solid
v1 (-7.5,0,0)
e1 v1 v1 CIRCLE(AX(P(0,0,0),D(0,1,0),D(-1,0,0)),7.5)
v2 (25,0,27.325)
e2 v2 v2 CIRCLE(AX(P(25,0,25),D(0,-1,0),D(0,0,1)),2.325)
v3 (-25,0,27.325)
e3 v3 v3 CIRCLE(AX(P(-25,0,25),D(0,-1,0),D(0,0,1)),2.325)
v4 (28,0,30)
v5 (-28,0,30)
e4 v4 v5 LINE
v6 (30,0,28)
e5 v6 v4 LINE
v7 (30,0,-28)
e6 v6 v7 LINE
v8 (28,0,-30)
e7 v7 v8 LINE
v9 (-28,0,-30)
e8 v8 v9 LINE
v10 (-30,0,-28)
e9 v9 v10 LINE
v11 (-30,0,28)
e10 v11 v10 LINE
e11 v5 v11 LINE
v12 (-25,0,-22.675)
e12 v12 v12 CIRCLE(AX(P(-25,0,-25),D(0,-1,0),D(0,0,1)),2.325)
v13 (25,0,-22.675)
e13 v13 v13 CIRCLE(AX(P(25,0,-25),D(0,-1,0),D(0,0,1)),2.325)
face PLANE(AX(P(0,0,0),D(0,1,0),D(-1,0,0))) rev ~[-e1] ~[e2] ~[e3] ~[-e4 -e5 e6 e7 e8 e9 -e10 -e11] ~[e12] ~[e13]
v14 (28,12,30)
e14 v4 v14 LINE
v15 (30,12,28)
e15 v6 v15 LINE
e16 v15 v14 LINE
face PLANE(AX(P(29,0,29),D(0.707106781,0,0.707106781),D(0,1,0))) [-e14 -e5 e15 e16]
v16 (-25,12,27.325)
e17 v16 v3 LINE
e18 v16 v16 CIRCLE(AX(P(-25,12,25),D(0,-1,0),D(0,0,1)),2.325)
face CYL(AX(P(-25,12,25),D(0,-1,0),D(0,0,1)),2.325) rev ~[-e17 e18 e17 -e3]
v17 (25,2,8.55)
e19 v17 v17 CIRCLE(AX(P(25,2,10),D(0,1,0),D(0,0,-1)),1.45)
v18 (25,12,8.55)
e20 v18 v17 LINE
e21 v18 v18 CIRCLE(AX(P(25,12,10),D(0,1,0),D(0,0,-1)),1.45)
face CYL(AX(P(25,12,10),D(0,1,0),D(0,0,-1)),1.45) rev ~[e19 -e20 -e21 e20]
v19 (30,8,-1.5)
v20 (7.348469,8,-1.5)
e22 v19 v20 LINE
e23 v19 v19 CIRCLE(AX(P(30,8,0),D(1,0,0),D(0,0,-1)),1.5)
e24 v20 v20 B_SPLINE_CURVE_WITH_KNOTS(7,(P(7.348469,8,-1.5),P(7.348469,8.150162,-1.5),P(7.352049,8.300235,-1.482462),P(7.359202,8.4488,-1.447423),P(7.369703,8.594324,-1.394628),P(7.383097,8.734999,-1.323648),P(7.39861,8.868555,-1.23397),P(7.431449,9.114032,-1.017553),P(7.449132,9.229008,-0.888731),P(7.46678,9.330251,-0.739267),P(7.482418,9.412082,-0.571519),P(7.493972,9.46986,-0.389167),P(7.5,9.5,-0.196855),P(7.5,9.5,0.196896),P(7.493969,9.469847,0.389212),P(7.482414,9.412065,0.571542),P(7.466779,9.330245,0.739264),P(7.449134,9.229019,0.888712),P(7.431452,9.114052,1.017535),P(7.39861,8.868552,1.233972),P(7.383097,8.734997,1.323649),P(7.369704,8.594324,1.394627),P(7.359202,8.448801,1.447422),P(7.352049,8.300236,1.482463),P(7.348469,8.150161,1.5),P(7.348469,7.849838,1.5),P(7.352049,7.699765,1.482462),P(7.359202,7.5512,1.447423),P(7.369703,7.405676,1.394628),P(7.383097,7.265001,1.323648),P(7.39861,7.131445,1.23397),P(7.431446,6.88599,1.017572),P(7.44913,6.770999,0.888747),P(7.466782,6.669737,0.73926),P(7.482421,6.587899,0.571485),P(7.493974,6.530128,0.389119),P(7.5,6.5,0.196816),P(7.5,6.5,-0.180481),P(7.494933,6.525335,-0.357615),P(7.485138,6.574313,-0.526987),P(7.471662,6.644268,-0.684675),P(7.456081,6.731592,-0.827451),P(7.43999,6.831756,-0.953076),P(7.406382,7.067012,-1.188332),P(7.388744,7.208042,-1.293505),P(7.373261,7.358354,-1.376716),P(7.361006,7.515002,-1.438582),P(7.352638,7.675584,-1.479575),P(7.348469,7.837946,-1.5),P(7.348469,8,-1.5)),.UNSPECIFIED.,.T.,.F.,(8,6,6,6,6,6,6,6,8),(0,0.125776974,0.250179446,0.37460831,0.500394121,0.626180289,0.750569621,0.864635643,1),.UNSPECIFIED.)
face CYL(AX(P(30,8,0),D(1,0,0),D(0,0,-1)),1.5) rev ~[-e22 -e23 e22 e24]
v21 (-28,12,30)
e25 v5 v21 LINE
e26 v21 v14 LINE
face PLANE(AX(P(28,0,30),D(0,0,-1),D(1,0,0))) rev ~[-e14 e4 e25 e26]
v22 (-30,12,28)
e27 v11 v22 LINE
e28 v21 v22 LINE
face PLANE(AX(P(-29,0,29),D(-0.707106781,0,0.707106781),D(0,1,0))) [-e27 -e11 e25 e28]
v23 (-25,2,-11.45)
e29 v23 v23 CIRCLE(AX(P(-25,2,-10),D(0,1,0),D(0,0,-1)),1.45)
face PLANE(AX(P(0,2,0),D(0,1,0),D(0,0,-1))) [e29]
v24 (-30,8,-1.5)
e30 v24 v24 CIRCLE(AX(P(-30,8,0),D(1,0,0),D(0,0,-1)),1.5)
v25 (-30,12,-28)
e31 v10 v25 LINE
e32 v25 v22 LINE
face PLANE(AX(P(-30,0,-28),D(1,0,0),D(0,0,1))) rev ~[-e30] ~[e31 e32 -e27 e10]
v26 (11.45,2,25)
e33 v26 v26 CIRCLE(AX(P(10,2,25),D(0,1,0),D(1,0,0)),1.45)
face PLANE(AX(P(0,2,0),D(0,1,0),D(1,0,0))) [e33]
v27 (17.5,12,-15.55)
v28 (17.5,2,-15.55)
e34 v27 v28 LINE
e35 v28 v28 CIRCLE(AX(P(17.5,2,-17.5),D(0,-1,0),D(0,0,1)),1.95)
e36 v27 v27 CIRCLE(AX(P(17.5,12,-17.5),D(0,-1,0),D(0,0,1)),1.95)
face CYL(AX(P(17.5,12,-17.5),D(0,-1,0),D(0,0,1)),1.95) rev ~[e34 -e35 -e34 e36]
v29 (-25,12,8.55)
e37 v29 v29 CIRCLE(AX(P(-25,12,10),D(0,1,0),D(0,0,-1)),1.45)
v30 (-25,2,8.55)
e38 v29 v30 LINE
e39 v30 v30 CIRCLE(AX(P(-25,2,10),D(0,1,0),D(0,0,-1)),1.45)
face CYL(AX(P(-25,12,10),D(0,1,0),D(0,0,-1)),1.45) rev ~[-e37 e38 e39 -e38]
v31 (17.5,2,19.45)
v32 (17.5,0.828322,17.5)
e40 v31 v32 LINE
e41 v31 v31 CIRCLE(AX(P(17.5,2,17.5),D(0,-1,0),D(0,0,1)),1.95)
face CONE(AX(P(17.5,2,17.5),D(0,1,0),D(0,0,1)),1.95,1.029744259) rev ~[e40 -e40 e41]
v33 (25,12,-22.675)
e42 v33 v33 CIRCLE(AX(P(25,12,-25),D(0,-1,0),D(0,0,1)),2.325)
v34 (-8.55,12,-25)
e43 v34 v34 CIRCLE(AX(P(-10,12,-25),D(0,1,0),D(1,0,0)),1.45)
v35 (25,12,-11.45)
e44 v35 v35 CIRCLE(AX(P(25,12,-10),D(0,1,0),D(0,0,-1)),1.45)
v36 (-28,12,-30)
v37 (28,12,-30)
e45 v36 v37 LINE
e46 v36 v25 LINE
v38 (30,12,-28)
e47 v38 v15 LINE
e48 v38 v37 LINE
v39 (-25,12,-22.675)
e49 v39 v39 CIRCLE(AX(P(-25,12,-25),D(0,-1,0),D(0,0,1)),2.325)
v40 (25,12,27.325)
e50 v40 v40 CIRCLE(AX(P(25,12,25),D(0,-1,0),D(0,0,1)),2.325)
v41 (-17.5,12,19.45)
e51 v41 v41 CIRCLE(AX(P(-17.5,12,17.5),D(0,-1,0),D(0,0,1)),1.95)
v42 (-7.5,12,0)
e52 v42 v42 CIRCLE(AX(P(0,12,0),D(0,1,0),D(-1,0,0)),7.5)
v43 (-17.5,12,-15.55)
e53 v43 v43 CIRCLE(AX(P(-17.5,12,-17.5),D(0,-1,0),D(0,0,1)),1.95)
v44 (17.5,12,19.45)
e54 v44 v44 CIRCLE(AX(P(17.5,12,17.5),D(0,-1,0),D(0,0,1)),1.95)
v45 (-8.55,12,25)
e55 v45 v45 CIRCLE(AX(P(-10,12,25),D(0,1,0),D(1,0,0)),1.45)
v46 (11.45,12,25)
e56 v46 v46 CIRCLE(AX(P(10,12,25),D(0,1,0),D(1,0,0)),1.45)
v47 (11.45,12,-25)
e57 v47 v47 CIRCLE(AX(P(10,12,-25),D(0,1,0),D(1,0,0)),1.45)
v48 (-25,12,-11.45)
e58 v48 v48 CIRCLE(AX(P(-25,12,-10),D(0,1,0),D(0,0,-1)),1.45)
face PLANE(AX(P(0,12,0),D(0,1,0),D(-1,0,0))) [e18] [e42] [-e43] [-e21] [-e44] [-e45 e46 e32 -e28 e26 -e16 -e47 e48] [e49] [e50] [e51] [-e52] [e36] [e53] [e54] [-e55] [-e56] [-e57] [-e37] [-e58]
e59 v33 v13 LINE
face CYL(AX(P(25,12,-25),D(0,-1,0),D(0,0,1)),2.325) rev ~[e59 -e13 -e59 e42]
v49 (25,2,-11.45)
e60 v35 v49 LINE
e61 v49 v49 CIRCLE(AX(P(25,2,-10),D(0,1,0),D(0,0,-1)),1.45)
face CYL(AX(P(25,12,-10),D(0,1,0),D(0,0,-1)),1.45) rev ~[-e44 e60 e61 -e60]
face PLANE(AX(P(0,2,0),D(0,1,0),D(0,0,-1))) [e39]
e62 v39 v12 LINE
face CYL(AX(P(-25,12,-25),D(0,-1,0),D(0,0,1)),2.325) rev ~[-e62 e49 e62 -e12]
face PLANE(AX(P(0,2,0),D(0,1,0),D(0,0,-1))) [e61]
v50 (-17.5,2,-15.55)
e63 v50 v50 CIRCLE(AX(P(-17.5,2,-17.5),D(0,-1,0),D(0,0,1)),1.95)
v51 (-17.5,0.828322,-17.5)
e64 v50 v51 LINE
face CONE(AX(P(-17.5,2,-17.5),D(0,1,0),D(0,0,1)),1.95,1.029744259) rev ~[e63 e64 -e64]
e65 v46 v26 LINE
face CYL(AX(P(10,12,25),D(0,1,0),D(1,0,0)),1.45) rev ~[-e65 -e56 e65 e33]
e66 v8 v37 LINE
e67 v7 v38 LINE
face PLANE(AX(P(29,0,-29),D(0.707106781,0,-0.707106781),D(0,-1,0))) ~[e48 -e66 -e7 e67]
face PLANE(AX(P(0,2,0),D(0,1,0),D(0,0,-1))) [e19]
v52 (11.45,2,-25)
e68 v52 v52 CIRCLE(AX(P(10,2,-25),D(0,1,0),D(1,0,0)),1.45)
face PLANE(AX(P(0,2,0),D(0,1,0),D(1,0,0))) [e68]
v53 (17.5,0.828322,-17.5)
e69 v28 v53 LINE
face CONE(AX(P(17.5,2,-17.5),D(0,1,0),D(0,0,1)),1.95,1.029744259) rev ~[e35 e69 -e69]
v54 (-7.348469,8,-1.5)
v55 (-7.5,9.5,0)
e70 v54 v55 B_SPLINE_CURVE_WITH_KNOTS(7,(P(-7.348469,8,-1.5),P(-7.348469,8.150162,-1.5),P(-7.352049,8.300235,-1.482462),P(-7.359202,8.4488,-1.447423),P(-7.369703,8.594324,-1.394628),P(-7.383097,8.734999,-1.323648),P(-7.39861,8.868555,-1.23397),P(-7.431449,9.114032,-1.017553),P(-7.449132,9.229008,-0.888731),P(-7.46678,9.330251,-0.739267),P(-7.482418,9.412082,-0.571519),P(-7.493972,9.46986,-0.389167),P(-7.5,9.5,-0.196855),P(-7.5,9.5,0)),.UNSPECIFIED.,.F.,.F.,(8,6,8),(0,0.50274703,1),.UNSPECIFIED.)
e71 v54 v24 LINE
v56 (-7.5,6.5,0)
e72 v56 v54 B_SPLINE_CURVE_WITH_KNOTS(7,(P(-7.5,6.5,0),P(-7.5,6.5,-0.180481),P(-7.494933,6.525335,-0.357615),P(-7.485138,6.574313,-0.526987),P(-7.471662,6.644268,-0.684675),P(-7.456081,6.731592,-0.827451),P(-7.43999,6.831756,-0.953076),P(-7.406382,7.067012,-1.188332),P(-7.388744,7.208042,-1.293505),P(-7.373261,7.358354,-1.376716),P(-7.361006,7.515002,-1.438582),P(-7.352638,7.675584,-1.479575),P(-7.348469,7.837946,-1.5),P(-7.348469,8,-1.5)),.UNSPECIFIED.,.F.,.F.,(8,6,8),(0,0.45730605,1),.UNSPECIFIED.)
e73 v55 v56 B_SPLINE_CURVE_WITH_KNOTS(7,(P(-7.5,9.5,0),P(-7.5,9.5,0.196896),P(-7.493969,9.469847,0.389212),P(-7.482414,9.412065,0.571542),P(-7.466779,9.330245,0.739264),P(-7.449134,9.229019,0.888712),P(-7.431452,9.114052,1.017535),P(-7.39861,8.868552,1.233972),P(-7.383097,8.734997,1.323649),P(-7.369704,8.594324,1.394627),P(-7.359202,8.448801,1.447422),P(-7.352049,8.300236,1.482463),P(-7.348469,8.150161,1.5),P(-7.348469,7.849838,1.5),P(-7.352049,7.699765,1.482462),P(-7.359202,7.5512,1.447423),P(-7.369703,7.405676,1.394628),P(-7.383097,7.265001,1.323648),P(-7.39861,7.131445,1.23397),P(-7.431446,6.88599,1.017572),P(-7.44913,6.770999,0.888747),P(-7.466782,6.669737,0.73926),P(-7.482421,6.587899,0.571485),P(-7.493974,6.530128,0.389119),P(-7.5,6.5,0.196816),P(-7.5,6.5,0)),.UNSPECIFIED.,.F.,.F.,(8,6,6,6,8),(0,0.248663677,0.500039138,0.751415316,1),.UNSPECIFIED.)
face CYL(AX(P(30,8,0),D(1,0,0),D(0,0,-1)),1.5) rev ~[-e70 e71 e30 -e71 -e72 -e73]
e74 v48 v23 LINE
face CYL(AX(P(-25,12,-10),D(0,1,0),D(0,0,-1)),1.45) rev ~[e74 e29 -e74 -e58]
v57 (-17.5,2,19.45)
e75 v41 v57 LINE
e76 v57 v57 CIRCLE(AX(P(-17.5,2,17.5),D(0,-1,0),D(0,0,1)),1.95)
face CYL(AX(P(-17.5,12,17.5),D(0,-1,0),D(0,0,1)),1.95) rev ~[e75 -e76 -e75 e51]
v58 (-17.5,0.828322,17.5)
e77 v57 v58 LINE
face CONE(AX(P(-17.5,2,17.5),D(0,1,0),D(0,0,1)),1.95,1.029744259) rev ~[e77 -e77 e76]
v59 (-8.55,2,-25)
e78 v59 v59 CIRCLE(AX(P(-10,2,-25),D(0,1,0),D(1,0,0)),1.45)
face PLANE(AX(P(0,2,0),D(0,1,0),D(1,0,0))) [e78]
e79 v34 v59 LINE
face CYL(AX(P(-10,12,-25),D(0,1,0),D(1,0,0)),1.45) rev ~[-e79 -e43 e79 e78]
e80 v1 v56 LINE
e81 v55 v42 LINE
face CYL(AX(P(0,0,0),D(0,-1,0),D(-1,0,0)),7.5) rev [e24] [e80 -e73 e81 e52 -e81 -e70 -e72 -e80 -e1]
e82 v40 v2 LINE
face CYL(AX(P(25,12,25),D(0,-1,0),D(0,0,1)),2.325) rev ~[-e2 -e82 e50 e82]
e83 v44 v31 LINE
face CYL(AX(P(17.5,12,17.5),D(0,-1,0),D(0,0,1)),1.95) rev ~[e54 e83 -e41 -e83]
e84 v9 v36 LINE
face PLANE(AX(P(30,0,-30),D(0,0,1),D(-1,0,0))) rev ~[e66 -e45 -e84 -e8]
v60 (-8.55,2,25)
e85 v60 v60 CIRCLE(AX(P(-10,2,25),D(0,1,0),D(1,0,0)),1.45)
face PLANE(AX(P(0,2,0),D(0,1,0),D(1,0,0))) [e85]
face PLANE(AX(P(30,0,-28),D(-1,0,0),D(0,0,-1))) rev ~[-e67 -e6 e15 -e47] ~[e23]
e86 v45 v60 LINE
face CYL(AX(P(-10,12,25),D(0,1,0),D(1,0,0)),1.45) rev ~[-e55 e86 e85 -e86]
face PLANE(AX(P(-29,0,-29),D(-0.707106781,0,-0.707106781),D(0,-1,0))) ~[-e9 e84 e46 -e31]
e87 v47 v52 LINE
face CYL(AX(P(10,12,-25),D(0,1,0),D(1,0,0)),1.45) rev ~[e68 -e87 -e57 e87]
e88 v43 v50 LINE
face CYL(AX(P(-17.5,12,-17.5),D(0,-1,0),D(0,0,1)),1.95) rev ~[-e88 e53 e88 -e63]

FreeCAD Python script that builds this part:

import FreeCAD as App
import Part
import Sketcher

V = App.Vector


def edges_at(feature, points):
    """Names of the edges that pass closest to the given points."""
    edges = feature.Shape.Edges
    near = lambda p: min(range(len(edges)), key=lambda i: edges[i].distToShape(Part.Vertex(*p))[0])
    return sorted({f"Edge{near(p) + 1}" for p in points})

doc = App.newDocument("Part")
body = doc.addObject("PartDesign::Body", "Body")

sketch1 = doc.addObject("Sketcher::SketchObject", "Sketch")
body.addObject(sketch1)
sketch1.AttachmentSupport = (doc.XZ_Plane, [""])
sketch1.MapMode = "FlatFace"
sketch1.addGeometry([
    Part.LineSegment(V(30, -30, 0), V(-30, -30, 0)),
    Part.LineSegment(V(-30, -30, 0), V(-30, 30, 0)),
    Part.LineSegment(V(-30, 30, 0), V(30, 30, 0)),
    Part.LineSegment(V(30, 30, 0), V(30, -30, 0)),
    Part.Circle(V(0, 0, 0), V(0, 0, 1), 7.5),
], False)
sketch1.addConstraint([
    Sketcher.Constraint("Coincident", 0, 2, 1, 1),
    Sketcher.Constraint("Coincident", 1, 2, 2, 1),
    Sketcher.Constraint("Coincident", 2, 2, 3, 1),
    Sketcher.Constraint("Coincident", 3, 2, 0, 1),
    Sketcher.Constraint("Horizontal", 0),
    Sketcher.Constraint("Vertical", 1),
    Sketcher.Constraint("Horizontal", 2),
    Sketcher.Constraint("Vertical", 3),
    Sketcher.Constraint("Coincident", 4, 3, -1, 1),
    Sketcher.Constraint("Symmetric", 0, 2, 2, 2, -1, 1),
    Sketcher.Constraint("Equal", 2, 1),
    Sketcher.Constraint("Diameter", 4, 15.0),
    Sketcher.Constraint("DistanceX", 0, 2, 0, 1, 60.0),
])
pad1 = doc.addObject("PartDesign::Pad", "Pad")
body.addObject(pad1)
pad1.Profile = sketch1
pad1.Length = 12
pad1.Reversed = True

sketch2 = doc.addObject("Sketcher::SketchObject", "Sketch001")
body.addObject(sketch2)
sketch2.AttachmentSupport = (doc.XZ_Plane, [""])
sketch2.MapMode = "FlatFace"
sketch2.AttachmentOffset = App.Placement(V(0, 0, -12), App.Rotation())
sketch2.addGeometry([
    Part.Circle(V(-17.5, 17.5, 0), V(0, 0, 1), 1.95),
    Part.Circle(V(-17.5, -17.5, 0), V(0, 0, 1), 1.95),
    Part.Circle(V(17.5, -17.5, 0), V(0, 0, 1), 1.95),
    Part.Circle(V(17.5, 17.5, 0), V(0, 0, 1), 1.95),
], False)
sketch2.addConstraint([
    Sketcher.Constraint("Equal", 0, 1),
    Sketcher.Constraint("Equal", 1, 2),
    Sketcher.Constraint("Equal", 2, 3),
    Sketcher.Constraint("Symmetric", 0, 3, 2, 3, -1, 1),
    Sketcher.Constraint("Symmetric", 1, 3, 3, 3, -1, 1),
    Sketcher.Constraint("Symmetric", 1, 3, 2, 3, -2),
    Sketcher.Constraint("Diameter", 0, 3.9),
    Sketcher.Constraint("DistanceY", 1, 3, 0, 3, 35.0),
    Sketcher.Constraint("DistanceX", 1, 3, 2, 3, 35.0),
])
doc.recompute()
hole = doc.addObject("PartDesign::Hole", "Hole")
body.addObject(hole)
hole.Profile = sketch2
hole.ThreadType = "None"
hole.Diameter = 3.9
hole.DepthType = "Dimension"
hole.Depth = 10
hole.DrillPoint = "Angled"
hole.DrillPointAngle = 118
hole.Reversed = True
doc.recompute()

chamfer = doc.addObject("PartDesign::Chamfer", "Chamfer")
body.addObject(chamfer)
chamfer.Base = (hole, edges_at(hole, [
    (30, 6, 30),
    (30, 6, -30),
    (-30, 6, -30),
    (-30, 6, 30),
]))
chamfer.Size = 2

sketch3 = doc.addObject("Sketcher::SketchObject", "Sketch002")
body.addObject(sketch3)
sketch3.AttachmentSupport = (doc.XZ_Plane, [""])
sketch3.MapMode = "FlatFace"
sketch3.AttachmentOffset = App.Placement(V(0, 0, -12), App.Rotation())
sketch3.addGeometry([
    Part.Circle(V(-25, -25, 0), V(0, 0, 1), 2.325),
    Part.Circle(V(25, -25, 0), V(0, 0, 1), 2.325),
    Part.Circle(V(25, 25, 0), V(0, 0, 1), 2.325),
    Part.Circle(V(-25, 25, 0), V(0, 0, 1), 2.325),
], False)
sketch3.addConstraint([
    Sketcher.Constraint("Equal", 0, 1),
    Sketcher.Constraint("Equal", 1, 2),
    Sketcher.Constraint("Equal", 2, 3),
    Sketcher.Constraint("Symmetric", 0, 3, 2, 3, -1, 1),
    Sketcher.Constraint("Symmetric", 1, 3, 3, 3, -1, 1),
    Sketcher.Constraint("Symmetric", 0, 3, 1, 3, -2),
    Sketcher.Constraint("Diameter", 0, 4.65),
    Sketcher.Constraint("DistanceX", 0, 3, -1, 1, 25.0),
    Sketcher.Constraint("DistanceY", 0, 3, -1, 1, 25.0),
])
doc.recompute()
hole2 = doc.addObject("PartDesign::Hole", "Hole001")
body.addObject(hole2)
hole2.Profile = sketch3
hole2.ThreadType = "None"
hole2.Diameter = 4.65
hole2.DepthType = "ThroughAll"
hole2.Reversed = True

sketch4 = doc.addObject("Sketcher::SketchObject", "Sketch003")
body.addObject(sketch4)
sketch4.AttachmentSupport = (doc.YZ_Plane, [""])
sketch4.MapMode = "FlatFace"
sketch4.AttachmentOffset = App.Placement(V(0, 0, 30), App.Rotation())
sketch4.addGeometry(Part.Circle(V(8, 0, 0), V(0, 0, 1), 1.5), False)
sketch4.addConstraint([
    Sketcher.Constraint("PointOnObject", 0, 3, -1),
    Sketcher.Constraint("Diameter", 0, 3.0),
    Sketcher.Constraint("DistanceX", -1, 1, 0, 3, 8.0),
])
pocket1 = doc.addObject("PartDesign::Pocket", "Pocket")
body.addObject(pocket1)
pocket1.Profile = sketch4
pocket1.Type = "ThroughAll"

sketch5 = doc.addObject("Sketcher::SketchObject", "Sketch004")
body.addObject(sketch5)
sketch5.AttachmentSupport = (doc.XZ_Plane, [""])
sketch5.MapMode = "FlatFace"
sketch5.AttachmentOffset = App.Placement(V(0, 0, -12), App.Rotation())
sketch5.addGeometry([
    Part.Circle(V(10, 25, 0), V(0, 0, 1), 1.45),
    Part.Circle(V(-10, 25, 0), V(0, 0, 1), 1.45),
    Part.Circle(V(10, -25, 0), V(0, 0, 1), 1.45),
    Part.Circle(V(-10, -25, 0), V(0, 0, 1), 1.45),
], False)
sketch5.addConstraint([
    Sketcher.Constraint("Equal", 0, 1),
    Sketcher.Constraint("Equal", 1, 2),
    Sketcher.Constraint("Equal", 2, 3),
    Sketcher.Constraint("Symmetric", 1, 3, 2, 3, -1, 1),
    Sketcher.Constraint("Symmetric", 0, 3, 3, 3, -1, 1),
    Sketcher.Constraint("Symmetric", 0, 3, 1, 3, -2),
    Sketcher.Constraint("Diameter", 0, 2.9),
    Sketcher.Constraint("DistanceX", -1, 1, 0, 3, 10.0),
    Sketcher.Constraint("DistanceY", -1, 1, 0, 3, 25.0),
])
pocket2 = doc.addObject("PartDesign::Pocket", "Pocket001")
body.addObject(pocket2)
pocket2.Profile = sketch5
pocket2.Length = 10
pocket2.Reversed = True
doc.recompute()

polarpattern = doc.addObject("PartDesign::PolarPattern", "PolarPattern")
body.addObject(polarpattern)
polarpattern.Originals = [pocket2]
polarpattern.Axis = (doc.Y_Axis, [""])
polarpattern.Angle = 90
polarpattern.Occurrences = 2
body.Tip = polarpattern

doc.recompute()
